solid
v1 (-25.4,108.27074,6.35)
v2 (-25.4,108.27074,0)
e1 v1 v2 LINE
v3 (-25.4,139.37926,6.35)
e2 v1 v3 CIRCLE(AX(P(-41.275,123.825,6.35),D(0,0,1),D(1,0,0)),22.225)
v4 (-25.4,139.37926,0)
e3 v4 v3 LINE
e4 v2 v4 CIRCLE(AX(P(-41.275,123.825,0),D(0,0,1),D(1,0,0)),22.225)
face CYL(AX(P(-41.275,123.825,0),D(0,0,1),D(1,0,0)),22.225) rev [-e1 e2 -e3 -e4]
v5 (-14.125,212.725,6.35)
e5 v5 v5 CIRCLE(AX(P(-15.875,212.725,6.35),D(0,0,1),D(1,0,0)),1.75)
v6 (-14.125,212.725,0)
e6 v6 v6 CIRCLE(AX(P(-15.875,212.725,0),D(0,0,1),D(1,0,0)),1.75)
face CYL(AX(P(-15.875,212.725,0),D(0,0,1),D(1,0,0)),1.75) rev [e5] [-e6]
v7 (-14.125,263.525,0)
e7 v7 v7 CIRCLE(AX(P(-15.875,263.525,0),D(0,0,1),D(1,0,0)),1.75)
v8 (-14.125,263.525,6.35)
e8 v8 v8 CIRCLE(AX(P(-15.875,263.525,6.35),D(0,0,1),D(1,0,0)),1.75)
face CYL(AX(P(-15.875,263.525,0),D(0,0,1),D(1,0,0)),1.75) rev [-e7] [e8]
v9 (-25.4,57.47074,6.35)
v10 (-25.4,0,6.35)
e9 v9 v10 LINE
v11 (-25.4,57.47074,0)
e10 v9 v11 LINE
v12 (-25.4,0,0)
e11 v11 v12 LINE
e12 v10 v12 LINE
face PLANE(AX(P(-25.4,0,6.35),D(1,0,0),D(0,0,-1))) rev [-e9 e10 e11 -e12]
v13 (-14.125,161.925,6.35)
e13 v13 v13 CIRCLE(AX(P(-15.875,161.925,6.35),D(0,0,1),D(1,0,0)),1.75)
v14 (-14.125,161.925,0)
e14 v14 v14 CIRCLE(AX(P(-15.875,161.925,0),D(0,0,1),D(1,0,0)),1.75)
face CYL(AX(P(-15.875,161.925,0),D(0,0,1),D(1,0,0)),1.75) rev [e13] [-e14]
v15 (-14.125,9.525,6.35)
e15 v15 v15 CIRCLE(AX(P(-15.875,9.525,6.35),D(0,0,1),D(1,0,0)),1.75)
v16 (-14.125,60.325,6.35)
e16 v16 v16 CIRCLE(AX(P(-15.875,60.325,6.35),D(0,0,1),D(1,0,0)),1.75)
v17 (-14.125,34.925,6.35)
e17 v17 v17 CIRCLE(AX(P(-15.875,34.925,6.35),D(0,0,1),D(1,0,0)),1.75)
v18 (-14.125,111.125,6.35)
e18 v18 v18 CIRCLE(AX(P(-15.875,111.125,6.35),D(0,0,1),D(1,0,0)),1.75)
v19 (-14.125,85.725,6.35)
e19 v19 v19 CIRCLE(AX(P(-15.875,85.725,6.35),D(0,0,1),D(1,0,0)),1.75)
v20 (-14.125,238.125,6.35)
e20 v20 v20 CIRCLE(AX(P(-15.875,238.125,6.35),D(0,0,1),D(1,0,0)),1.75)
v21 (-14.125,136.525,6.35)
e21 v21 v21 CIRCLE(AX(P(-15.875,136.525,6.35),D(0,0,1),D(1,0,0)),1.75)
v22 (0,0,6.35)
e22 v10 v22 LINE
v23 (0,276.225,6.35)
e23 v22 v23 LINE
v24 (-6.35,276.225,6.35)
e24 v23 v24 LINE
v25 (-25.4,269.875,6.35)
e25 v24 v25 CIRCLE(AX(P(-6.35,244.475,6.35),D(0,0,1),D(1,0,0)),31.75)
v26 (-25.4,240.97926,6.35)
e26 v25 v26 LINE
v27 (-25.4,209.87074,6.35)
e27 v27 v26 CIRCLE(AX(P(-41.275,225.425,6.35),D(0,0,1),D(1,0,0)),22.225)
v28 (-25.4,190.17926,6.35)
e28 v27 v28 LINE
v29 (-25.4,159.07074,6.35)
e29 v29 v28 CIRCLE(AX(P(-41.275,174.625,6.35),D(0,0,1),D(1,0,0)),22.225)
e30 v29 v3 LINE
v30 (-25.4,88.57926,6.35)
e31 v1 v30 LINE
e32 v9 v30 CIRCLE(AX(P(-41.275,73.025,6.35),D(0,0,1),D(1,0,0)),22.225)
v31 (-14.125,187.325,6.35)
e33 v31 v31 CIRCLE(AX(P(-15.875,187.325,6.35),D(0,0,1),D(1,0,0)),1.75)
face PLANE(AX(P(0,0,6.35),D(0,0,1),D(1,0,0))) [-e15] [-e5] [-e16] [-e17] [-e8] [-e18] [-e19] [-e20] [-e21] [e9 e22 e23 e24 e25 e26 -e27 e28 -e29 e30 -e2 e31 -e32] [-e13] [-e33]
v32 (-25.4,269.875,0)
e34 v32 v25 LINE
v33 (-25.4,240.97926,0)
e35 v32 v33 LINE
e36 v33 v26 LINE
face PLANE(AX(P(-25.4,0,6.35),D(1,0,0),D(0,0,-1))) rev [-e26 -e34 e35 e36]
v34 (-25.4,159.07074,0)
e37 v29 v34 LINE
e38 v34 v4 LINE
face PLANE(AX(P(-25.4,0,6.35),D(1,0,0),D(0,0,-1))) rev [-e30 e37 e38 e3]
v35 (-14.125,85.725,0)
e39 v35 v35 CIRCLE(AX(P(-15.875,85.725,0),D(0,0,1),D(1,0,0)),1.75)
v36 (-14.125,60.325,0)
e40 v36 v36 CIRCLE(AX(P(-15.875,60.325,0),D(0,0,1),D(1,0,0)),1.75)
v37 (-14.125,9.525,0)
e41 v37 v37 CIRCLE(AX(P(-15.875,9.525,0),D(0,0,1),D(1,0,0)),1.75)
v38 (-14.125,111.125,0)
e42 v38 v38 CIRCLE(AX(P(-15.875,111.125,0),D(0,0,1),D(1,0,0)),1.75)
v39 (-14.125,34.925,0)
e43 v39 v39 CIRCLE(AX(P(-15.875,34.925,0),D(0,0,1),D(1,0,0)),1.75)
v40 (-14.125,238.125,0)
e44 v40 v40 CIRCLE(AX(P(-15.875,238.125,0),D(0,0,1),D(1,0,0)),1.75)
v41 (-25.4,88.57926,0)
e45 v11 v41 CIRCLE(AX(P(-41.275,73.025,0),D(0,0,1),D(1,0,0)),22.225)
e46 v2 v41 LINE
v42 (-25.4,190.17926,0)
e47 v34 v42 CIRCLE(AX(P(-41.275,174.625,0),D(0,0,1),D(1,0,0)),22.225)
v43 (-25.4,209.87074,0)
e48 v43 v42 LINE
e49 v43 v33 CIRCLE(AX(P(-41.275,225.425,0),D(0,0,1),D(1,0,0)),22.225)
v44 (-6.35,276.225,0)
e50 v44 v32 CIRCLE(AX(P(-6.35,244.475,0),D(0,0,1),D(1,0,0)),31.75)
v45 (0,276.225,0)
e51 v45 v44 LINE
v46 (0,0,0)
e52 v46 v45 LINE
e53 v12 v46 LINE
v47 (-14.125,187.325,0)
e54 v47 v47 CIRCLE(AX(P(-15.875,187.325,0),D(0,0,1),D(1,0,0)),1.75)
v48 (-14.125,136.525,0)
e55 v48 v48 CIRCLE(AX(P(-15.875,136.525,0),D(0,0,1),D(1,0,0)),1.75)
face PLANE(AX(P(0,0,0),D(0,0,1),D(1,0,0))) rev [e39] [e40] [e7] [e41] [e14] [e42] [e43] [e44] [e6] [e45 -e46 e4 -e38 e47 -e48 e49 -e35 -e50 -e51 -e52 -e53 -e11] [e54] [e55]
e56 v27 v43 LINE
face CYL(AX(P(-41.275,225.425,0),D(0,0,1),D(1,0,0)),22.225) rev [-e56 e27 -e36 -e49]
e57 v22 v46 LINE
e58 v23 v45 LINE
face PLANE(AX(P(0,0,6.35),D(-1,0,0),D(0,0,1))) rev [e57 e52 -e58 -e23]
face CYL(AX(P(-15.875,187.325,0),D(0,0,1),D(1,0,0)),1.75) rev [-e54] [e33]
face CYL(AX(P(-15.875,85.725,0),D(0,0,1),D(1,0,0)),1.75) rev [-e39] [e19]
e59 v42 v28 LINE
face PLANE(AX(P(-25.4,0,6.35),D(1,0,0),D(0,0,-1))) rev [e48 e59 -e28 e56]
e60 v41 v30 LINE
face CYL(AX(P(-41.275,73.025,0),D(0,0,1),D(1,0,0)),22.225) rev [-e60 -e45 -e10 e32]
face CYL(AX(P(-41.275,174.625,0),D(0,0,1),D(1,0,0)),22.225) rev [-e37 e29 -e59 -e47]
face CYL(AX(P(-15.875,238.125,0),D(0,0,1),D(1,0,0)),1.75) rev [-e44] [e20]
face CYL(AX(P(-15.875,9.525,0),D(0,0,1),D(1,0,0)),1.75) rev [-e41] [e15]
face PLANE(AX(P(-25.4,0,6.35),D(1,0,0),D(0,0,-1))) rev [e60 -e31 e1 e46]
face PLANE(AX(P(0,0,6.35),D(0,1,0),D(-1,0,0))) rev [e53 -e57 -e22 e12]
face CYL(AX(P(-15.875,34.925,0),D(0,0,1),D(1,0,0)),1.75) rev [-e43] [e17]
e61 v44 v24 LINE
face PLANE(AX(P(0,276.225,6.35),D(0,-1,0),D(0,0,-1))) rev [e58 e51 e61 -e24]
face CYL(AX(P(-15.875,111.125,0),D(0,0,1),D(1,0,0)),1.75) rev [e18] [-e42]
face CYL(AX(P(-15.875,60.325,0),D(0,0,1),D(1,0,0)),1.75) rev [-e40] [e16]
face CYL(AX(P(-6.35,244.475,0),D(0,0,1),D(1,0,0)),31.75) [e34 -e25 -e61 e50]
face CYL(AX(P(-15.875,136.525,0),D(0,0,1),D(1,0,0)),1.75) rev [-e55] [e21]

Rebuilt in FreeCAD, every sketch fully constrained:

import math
import FreeCAD as App
import Part
import Sketcher

V = App.Vector
Q = App.Units.Quantity

doc = App.newDocument("Part")
body = doc.addObject("PartDesign::Body", "Body")

sketch1 = body.newObject("Sketcher::SketchObject", "Sketch")
sketch1.AttachmentSupport = (doc.getObject("XY_Plane"), [""])
sketch1.MapMode = "FlatFace"
sketch1.addGeometry([
    Part.LineSegment(V(-25, 276, 0), V(-25, 0, 0)),
    Part.LineSegment(V(-25, 0, 0), V(0, 0, 0)),
    Part.LineSegment(V(0, 0, 0), V(0, 276, 0)),
    Part.LineSegment(V(0, 276, 0), V(-25, 276, 0)),
], False)
sketch1.addConstraint([
    Sketcher.Constraint("Coincident", 0, 2, 1, 1),
    Sketcher.Constraint("Coincident", 1, 2, 2, 1),
    Sketcher.Constraint("Coincident", 2, 2, 3, 1),
    Sketcher.Constraint("Coincident", 3, 2, 0, 1),
    Sketcher.Constraint("Vertical", 0),
    Sketcher.Constraint("Horizontal", 1),
    Sketcher.Constraint("Vertical", 2),
    Sketcher.Constraint("Horizontal", 3),
    Sketcher.Constraint("Coincident", 1, 2, -1, 1),
    Sketcher.Constraint("DistanceX", 1, 1, 1, 2, Q("1 in")),
    Sketcher.Constraint("DistanceY", 0, 2, 0, 1, Q("10.875 in")),
])
pad1 = body.newObject("PartDesign::Pad", "Pad")
pad1.Profile = sketch1
pad1.Length = Q("0.25 in")

sketch2 = body.newObject("Sketcher::SketchObject", "Sketch001")
sketch2.AttachmentSupport = (doc.getObject("XY_Plane"), [""])
sketch2.MapMode = "FlatFace"
sketch2.AttachmentOffset = App.Placement(V(0, 0, 0.25 * 25.4), App.Rotation())
sketch2.addGeometry([
    Part.LineSegment(V(-6, 276, 0), V(-32, 276, 0)),
    Part.LineSegment(V(-32, 276, 0), V(-32, 264, 0)),
    Part.ArcOfCircle(Part.Circle(V(-6, 244, 0), V(0, 0, 1), 32), math.radians(90), math.radians(143)),
], False)
sketch2.addConstraint([
    Sketcher.Constraint("Coincident", 0, 2, 1, 1),
    Sketcher.Constraint("Coincident", 1, 2, 2, 2),
    Sketcher.Constraint("Tangent", 2, 1, 0, 1),
    Sketcher.Constraint("Horizontal", 0),
    Sketcher.Constraint("Vertical", 1),
    Sketcher.Constraint("Radius", 2, Q("1.25 in")),
    Sketcher.Constraint("DistanceX", 2, 3, -1, 1, Q("0.25 in")),
    Sketcher.Constraint("DistanceY", -1, 1, 2, 3, Q("9.625 in")),
    Sketcher.Constraint("DistanceX", 0, 2, 0, 1, 25.41328),
])
pocket1 = body.newObject("PartDesign::Pocket", "Pocket")
pocket1.Profile = sketch2
pocket1.Type = "ThroughAll"

sketch3 = body.newObject("Sketcher::SketchObject", "Sketch002")
sketch3.AttachmentSupport = (doc.getObject("XY_Plane"), [""])
sketch3.MapMode = "FlatFace"
sketch3.AttachmentOffset = App.Placement(V(0, 0, 0.25 * 25.4), App.Rotation())
sketch3.addGeometry(Part.Circle(V(-15.9, 263.5, 0), V(0, 0, 1), 1.8), False)
sketch3.addConstraint([
    Sketcher.Constraint("Diameter", 0, 3.5),
    Sketcher.Constraint("DistanceX", 0, 3, -1, 1, Q("0.625 in")),
    Sketcher.Constraint("DistanceY", -1, 1, 0, 3, Q("10.375 in")),
])
pocket2 = body.newObject("PartDesign::Pocket", "Pocket001")
pocket2.Profile = sketch3
pocket2.Type = "ThroughAll"
doc.recompute()

linearpattern = body.newObject("PartDesign::LinearPattern", "LinearPattern")
linearpattern.Originals = [pocket2]
linearpattern.Direction = (doc.getObject("Y_Axis"), [""])
linearpattern.Mode = "offset"
linearpattern.Offset = Q("1 in")
linearpattern.Occurrences = 11
linearpattern.Reversed = True
body.Tip = linearpattern

sketch4 = body.newObject("Sketcher::SketchObject", "Sketch003")
sketch4.AttachmentSupport = (doc.getObject("XY_Plane"), [""])
sketch4.MapMode = "FlatFace"
sketch4.AttachmentOffset = App.Placement(V(0, 0, 0.25 * 25.4), App.Rotation())
sketch4.addGeometry(Part.Circle(V(-41, 225, 0), V(0, 0, 1), 22), False)
sketch4.addConstraint([
    Sketcher.Constraint("Diameter", 0, Q("1.75 in")),
    Sketcher.Constraint("DistanceX", 0, 3, -1, 1, Q("1.625 in")),
    Sketcher.Constraint("DistanceY", -1, 1, 0, 3, Q("8.875 in")),
])
pocket3 = body.newObject("PartDesign::Pocket", "Pocket002")
pocket3.Profile = sketch4
pocket3.Type = "ThroughAll"
doc.recompute()

linearpattern2 = body.newObject("PartDesign::LinearPattern", "LinearPattern001")
linearpattern2.Originals = [pocket3]
linearpattern2.Direction = (doc.getObject("Y_Axis"), [""])
linearpattern2.Mode = "offset"
linearpattern2.Offset = Q("2 in")
linearpattern2.Occurrences = 4
linearpattern2.Reversed = True
body.Tip = linearpattern2

doc.recompute()
